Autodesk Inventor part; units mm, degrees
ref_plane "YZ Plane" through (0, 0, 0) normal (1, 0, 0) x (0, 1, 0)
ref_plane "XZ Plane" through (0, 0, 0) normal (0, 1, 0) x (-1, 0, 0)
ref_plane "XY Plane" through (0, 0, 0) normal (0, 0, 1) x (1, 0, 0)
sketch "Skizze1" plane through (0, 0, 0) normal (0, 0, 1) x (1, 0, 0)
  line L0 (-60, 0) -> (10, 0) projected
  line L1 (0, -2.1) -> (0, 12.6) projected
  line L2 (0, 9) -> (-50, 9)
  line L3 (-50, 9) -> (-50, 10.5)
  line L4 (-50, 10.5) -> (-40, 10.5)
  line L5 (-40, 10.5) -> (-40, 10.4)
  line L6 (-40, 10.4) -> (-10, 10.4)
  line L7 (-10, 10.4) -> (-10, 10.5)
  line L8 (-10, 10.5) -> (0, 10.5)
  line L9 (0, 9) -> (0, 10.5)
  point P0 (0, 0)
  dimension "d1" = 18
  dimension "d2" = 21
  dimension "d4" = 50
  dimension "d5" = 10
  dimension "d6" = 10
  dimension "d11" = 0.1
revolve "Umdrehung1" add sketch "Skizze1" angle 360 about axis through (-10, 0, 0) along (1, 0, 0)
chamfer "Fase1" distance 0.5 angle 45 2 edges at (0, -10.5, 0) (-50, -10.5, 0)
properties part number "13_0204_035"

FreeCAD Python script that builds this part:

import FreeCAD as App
import Part
import Sketcher


def edges_at(feature, points):
    """Names of the edges that pass closest to the given points."""
    edges = feature.Shape.Edges
    near = lambda p: min(range(len(edges)), key=lambda i: edges[i].distToShape(Part.Vertex(*p))[0])
    return sorted({f"Edge{near(p) + 1}" for p in points})


def add_polygon(sketch, points):
    """Adds a closed chain of lines whose ends are joined by coincident constraints."""
    first, n = sketch.GeometryCount, len(points)
    for a, b in zip(points, points[1:] + points[:1]):
        sketch.addGeometry(Part.LineSegment(App.Vector(*a, 0), App.Vector(*b, 0)), False)
    for i in range(n):
        sketch.addConstraint(Sketcher.Constraint("Coincident", first + i, 2, first + (i + 1) % n, 1))

doc = App.newDocument("Part")
params = doc.addObject("Spreadsheet::Sheet", "Params")
for row, (alias, value) in enumerate([
    ("sketch1_width", "50 mm"),
    ("sketch1_width2", "10 mm"),
    ("sketch1_height", "0.1 mm"),
    ("sketch1_height2", "1.5 mm"),
    ("revolution_angle", "360 deg"),
    ("chamfer_size", "0.5 mm"),
], start=1):
    params.set(f"A{row}", alias)
    params.set(f"B{row}", "=" + value)
    params.setAlias(f"B{row}", alias)

body = doc.addObject("PartDesign::Body", "Body")

sketch1 = body.newObject("Sketcher::SketchObject", "Sketch")
sketch1.AttachmentSupport = (doc.getObject("XY_Plane"), [""])
sketch1.MapMode = "FlatFace"
add_polygon(sketch1, [(-50, 9), (0, 9), (0, 10.5), (-10, 10.5), (-10, 10.4), (-40, 10.4), (-40, 10.5), (-50, 10.5)])
sketch1.addConstraint([
    Sketcher.Constraint("Horizontal", 0),
    Sketcher.Constraint("Vertical", 1),
    Sketcher.Constraint("Horizontal", 2),
    Sketcher.Constraint("Vertical", 3),
    Sketcher.Constraint("Horizontal", 4),
    Sketcher.Constraint("Vertical", 5),
    Sketcher.Constraint("Horizontal", 6),
    Sketcher.Constraint("Vertical", 7),
    Sketcher.Constraint("PointOnObject", 0, 2, -2),
    Sketcher.Constraint("Horizontal", 2, 2, 5, 2),
    Sketcher.Constraint("Equal", 2, 6),
    Sketcher.Constraint("DistanceX", 0, 1, 0, 2, 50.0),
    Sketcher.Constraint("DistanceX", 2, 2, 2, 1, 10.0),
    Sketcher.Constraint("DistanceY", 3, 2, 3, 1, 0.1),
    Sketcher.Constraint("DistanceY", 1, 1, 1, 2, 1.5),
    Sketcher.Constraint("DistanceY", -1, 1, 0, 2, 9.0),
])
sketch1.setExpression("Constraints[19]", "Params.sketch1_width")
sketch1.setExpression("Constraints[20]", "Params.sketch1_width2")
sketch1.setExpression("Constraints[21]", "Params.sketch1_height")
sketch1.setExpression("Constraints[22]", "Params.sketch1_height2")
revolution = body.newObject("PartDesign::Revolution", "Revolution")
revolution.Profile = sketch1
revolution.ReferenceAxis = (sketch1, ["H_Axis"])
revolution.setExpression("Angle", "Params.revolution_angle")
doc.recompute()

chamfer = body.newObject("PartDesign::Chamfer", "Chamfer")
chamfer.Base = (revolution, edges_at(revolution, [(0, -10.5, 0), (-50, -10.5, 0)]))
chamfer.setExpression("Size", "Params.chamfer_size")

doc.recompute()
